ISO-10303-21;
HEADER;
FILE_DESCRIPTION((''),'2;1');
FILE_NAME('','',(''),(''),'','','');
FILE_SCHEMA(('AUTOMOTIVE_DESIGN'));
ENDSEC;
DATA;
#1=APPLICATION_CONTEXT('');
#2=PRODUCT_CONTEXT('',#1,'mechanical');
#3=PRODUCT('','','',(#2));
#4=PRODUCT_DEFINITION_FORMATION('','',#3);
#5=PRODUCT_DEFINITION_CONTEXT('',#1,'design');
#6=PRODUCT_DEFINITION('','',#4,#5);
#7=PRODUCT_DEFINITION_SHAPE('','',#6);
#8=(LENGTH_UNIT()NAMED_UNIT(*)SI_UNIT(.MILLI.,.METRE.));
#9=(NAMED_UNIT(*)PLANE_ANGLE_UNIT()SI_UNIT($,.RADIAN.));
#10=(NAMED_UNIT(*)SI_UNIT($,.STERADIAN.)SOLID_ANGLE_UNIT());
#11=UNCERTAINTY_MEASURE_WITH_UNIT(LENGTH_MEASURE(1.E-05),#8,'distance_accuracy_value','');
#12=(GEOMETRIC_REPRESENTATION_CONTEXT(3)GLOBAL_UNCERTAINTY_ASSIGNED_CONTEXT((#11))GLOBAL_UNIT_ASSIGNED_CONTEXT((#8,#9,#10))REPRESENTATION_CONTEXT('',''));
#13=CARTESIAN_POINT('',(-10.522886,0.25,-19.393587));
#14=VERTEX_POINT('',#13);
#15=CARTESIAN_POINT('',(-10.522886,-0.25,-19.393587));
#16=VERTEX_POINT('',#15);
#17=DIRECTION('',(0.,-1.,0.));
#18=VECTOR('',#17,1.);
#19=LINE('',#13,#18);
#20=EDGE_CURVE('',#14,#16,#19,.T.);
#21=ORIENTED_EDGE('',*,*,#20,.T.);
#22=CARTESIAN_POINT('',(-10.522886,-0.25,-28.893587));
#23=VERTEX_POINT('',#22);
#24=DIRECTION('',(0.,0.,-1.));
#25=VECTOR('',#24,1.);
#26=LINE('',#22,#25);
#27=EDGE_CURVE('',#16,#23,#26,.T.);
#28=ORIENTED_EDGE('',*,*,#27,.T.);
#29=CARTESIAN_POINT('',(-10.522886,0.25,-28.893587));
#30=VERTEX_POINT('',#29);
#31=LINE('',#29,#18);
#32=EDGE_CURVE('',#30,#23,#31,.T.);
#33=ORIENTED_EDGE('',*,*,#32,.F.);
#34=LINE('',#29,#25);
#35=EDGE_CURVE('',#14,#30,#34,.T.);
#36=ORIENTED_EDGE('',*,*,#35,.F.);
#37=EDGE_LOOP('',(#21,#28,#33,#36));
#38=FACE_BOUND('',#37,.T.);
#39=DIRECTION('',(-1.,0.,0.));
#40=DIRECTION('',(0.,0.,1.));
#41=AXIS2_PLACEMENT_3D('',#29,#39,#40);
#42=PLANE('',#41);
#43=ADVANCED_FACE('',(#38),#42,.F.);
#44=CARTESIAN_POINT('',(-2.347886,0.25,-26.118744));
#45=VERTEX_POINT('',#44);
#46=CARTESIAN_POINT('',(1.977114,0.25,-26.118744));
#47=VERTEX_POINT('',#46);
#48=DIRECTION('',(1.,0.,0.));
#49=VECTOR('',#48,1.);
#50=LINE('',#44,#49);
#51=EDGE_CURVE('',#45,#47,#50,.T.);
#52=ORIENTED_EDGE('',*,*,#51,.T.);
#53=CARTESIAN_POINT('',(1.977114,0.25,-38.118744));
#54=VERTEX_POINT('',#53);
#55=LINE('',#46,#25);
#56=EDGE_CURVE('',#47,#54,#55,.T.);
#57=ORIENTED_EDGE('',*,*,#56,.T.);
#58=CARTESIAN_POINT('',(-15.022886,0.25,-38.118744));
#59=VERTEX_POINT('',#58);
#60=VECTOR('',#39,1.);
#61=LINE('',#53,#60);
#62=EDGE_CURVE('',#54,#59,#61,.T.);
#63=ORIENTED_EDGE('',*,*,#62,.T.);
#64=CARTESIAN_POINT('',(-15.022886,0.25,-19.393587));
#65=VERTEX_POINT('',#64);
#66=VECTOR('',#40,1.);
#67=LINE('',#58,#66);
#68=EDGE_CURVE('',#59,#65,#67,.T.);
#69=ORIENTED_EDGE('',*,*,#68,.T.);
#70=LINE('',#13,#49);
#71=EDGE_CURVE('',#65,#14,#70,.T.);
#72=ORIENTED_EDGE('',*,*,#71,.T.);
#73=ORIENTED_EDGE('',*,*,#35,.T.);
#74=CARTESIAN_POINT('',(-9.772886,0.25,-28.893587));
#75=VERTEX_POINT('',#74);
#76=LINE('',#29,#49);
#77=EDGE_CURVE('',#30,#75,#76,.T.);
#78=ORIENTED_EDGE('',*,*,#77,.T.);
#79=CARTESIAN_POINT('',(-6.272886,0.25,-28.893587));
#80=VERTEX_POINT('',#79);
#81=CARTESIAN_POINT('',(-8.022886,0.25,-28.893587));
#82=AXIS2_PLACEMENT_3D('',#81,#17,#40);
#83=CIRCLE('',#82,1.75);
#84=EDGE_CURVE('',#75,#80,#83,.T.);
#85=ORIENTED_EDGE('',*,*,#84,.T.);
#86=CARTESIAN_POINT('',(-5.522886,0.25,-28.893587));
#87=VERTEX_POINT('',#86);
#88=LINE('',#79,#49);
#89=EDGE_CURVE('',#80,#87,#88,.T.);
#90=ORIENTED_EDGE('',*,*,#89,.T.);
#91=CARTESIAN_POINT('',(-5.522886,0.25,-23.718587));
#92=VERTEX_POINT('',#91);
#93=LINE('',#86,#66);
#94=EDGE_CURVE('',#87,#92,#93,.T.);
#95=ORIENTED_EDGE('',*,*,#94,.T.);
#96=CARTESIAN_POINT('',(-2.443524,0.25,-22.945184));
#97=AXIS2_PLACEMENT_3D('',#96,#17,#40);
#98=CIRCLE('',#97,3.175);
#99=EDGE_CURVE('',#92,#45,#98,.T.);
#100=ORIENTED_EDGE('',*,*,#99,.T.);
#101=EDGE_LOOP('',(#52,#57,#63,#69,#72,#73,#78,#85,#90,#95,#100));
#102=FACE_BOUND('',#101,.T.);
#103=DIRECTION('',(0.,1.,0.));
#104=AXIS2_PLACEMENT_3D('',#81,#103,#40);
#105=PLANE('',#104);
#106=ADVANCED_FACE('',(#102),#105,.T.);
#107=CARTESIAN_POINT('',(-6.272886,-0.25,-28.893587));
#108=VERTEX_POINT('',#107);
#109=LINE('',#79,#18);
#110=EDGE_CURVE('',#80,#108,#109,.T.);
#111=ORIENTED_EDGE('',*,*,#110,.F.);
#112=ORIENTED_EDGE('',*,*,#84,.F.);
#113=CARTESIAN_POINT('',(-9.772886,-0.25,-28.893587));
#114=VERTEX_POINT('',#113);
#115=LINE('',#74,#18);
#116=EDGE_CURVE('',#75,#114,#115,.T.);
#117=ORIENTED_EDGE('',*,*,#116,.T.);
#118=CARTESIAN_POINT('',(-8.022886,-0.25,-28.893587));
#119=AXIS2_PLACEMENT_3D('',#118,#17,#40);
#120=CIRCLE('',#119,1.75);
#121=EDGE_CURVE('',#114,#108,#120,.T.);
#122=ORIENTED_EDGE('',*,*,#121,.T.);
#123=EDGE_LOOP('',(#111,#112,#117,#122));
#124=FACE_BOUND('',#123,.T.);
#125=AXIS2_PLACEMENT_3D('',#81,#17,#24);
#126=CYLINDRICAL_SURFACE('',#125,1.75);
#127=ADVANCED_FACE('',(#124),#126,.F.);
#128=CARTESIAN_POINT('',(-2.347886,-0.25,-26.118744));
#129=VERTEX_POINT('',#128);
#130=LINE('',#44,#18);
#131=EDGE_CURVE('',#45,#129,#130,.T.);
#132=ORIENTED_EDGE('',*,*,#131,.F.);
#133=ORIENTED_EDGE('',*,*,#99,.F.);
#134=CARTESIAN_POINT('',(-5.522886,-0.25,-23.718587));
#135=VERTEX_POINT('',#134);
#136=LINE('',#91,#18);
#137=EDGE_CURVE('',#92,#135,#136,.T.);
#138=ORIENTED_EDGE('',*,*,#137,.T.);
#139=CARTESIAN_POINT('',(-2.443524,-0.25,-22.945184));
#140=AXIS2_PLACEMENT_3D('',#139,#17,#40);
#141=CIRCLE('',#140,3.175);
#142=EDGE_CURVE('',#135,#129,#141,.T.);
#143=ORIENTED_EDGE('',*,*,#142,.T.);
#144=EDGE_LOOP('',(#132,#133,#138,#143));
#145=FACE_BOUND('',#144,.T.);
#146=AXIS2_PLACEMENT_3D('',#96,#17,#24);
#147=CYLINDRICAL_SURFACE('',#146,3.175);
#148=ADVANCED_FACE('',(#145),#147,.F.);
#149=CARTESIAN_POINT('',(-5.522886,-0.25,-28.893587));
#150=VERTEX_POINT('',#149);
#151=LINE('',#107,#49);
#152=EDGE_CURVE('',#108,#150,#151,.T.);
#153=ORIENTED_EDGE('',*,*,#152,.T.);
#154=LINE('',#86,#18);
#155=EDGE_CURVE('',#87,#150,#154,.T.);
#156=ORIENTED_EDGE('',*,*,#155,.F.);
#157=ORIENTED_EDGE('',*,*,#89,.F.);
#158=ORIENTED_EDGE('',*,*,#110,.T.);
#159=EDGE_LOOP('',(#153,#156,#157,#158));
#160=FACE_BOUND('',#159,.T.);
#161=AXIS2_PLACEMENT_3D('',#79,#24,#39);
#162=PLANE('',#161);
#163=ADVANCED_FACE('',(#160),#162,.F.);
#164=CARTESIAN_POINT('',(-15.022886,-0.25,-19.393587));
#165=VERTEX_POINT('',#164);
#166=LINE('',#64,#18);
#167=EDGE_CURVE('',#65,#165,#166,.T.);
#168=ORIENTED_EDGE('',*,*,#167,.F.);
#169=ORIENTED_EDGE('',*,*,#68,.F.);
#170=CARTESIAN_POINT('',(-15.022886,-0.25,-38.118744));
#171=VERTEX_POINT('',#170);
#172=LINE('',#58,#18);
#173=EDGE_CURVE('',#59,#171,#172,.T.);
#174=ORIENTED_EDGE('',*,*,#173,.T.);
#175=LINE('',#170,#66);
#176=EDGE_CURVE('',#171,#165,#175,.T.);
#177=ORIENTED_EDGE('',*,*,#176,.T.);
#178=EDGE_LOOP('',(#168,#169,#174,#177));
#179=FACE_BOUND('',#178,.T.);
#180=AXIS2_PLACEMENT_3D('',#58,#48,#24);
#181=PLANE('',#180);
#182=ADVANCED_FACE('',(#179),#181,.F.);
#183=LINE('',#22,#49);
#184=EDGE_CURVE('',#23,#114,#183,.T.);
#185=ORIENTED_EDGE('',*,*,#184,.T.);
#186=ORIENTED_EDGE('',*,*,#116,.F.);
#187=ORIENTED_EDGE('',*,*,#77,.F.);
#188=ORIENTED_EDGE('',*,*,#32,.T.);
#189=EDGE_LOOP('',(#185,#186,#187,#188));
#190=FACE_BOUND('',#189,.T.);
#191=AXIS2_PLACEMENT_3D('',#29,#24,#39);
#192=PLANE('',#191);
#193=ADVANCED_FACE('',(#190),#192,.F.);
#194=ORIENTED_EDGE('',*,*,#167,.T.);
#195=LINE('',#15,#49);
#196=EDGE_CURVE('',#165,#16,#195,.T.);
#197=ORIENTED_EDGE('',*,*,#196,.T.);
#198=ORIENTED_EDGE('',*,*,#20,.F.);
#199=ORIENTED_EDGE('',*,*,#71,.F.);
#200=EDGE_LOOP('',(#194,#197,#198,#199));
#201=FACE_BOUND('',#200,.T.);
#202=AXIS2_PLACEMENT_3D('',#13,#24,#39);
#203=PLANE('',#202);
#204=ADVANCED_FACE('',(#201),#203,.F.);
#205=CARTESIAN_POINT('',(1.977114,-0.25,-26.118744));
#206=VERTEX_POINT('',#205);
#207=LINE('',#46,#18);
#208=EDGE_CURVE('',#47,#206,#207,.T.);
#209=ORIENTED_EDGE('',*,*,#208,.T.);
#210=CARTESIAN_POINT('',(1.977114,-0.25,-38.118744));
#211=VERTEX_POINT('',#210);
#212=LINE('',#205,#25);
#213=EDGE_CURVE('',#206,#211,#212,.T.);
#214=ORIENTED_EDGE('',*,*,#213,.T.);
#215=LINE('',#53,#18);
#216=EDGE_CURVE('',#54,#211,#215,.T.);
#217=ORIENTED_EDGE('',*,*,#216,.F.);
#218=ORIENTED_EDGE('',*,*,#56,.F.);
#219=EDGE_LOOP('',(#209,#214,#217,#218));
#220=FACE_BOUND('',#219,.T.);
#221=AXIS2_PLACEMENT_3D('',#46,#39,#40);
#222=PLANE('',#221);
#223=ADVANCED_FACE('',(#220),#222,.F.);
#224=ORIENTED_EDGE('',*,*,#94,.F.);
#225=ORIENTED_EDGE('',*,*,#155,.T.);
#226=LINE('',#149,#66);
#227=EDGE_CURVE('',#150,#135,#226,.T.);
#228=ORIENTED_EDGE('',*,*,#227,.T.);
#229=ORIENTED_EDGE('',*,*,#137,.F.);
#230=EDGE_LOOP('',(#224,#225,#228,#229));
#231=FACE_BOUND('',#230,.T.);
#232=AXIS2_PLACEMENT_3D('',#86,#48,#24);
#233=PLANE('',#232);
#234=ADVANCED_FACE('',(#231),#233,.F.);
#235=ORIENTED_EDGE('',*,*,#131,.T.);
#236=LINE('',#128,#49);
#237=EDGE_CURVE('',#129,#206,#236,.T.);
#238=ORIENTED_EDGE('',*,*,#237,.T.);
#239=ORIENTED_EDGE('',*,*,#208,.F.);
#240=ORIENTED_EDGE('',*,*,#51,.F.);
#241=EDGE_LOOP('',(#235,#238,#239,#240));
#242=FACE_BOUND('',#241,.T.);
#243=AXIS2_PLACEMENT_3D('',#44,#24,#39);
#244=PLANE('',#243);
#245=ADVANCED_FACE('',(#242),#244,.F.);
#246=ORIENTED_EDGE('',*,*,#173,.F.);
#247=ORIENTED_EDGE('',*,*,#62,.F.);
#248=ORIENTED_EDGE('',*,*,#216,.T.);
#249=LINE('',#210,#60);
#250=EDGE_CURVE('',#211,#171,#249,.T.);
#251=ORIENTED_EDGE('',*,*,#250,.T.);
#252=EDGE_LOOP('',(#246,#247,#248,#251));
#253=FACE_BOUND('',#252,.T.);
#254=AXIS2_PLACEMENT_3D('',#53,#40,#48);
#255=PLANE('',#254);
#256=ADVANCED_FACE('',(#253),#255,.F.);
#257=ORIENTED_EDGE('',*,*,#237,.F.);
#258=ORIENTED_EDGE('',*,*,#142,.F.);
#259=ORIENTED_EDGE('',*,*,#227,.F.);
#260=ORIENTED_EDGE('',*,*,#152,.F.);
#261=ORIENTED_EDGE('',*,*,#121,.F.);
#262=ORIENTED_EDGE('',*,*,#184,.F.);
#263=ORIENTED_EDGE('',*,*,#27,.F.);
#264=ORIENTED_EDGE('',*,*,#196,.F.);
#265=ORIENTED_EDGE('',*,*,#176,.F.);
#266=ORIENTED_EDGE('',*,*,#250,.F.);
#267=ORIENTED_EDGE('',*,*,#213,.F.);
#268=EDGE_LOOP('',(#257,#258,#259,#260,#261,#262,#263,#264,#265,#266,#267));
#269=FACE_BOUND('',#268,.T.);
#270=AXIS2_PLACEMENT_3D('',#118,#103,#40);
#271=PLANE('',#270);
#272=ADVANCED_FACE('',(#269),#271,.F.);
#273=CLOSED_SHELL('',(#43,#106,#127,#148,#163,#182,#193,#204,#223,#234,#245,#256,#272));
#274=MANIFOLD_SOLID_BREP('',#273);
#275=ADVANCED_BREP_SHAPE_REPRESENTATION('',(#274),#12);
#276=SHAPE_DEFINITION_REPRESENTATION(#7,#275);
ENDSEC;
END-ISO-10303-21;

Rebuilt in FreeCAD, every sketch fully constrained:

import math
import FreeCAD as App
import Part
import Sketcher
from FreeCAD import Vector

doc = App.newDocument("Part")
body = doc.addObject("PartDesign::Body", "Body")

# Sketch on XZ plane
sketch1 = body.newObject("Sketcher::SketchObject", "Sketch")
sketch1.AttachmentSupport = (doc.getObject("XZ_Plane"), [""])
sketch1.MapMode = "FlatFace"
sketch1.addGeometry(Part.LineSegment(Vector(2, -26.1, 0), Vector(2, -38.1, 0)), False)
sketch1.addGeometry(Part.LineSegment(Vector(2, -38.1, 0), Vector(-15, -38.1, 0)), False)
sketch1.addGeometry(Part.LineSegment(Vector(-15, -38.1, 0), Vector(-15, -19.4, 0)), False)
sketch1.addGeometry(Part.LineSegment(Vector(-15, -19.4, 0), Vector(-10.5, -19.4, 0)), False)
sketch1.addGeometry(Part.LineSegment(Vector(-10.5, -19.4, 0), Vector(-10.5, -28.9, 0)), False)
sketch1.addGeometry(Part.LineSegment(Vector(-10.5, -28.9, 0), Vector(-9.8, -28.9, 0)), False)
sketch1.addGeometry(Part.ArcOfCircle(Part.Circle(Vector(-8, -28.9, 0), Vector(0, 0, 1), 1.8), math.radians(180), math.radians(360)), False)
sketch1.addGeometry(Part.LineSegment(Vector(-6.3, -28.9, 0), Vector(-5.5, -28.9, 0)), False)
sketch1.addGeometry(Part.LineSegment(Vector(-5.5, -28.9, 0), Vector(-5.5, -23.7, 0)), False)
sketch1.addGeometry(Part.ArcOfCircle(Part.Circle(Vector(-2.4, -22.9, 0), Vector(0, 0, 1), 3.2), math.radians(-166), math.radians(-88)), False)
sketch1.addGeometry(Part.LineSegment(Vector(-2.3, -26.1, 0), Vector(2, -26.1, 0)), False)
sketch1.addConstraint(Sketcher.Constraint("Coincident", 0, 2, 1, 1))
sketch1.addConstraint(Sketcher.Constraint("Coincident", 1, 2, 2, 1))
sketch1.addConstraint(Sketcher.Constraint("Coincident", 2, 2, 3, 1))
sketch1.addConstraint(Sketcher.Constraint("Coincident", 3, 2, 4, 1))
sketch1.addConstraint(Sketcher.Constraint("Coincident", 4, 2, 5, 1))
sketch1.addConstraint(Sketcher.Constraint("Coincident", 5, 2, 6, 1))
sketch1.addConstraint(Sketcher.Constraint("Coincident", 6, 2, 7, 1))
sketch1.addConstraint(Sketcher.Constraint("Coincident", 7, 2, 8, 1))
sketch1.addConstraint(Sketcher.Constraint("Coincident", 8, 2, 9, 1))
sketch1.addConstraint(Sketcher.Constraint("Coincident", 9, 2, 10, 1))
sketch1.addConstraint(Sketcher.Constraint("Coincident", 10, 2, 0, 1))
sketch1.addConstraint(Sketcher.Constraint("Vertical", 0))
sketch1.addConstraint(Sketcher.Constraint("Horizontal", 1))
sketch1.addConstraint(Sketcher.Constraint("Vertical", 2))
sketch1.addConstraint(Sketcher.Constraint("Horizontal", 3))
sketch1.addConstraint(Sketcher.Constraint("Vertical", 4))
sketch1.addConstraint(Sketcher.Constraint("Horizontal", 5))
sketch1.addConstraint(Sketcher.Constraint("Horizontal", 7))
sketch1.addConstraint(Sketcher.Constraint("Vertical", 8))
sketch1.addConstraint(Sketcher.Constraint("Horizontal", 10))
sketch1.addConstraint(Sketcher.Constraint("Horizontal", 6, 3, 4, 2))
sketch1.addConstraint(Sketcher.Constraint("Horizontal", 5, 2, 6, 2))
sketch1.addConstraint(Sketcher.Constraint("Equal", 5, 7))
sketch1.addConstraint(Sketcher.Constraint("DistanceX", 1, 2, 1, 1, 17.0))
sketch1.addConstraint(Sketcher.Constraint("DistanceY", 0, 2, 0, 1, 12.0))
sketch1.addConstraint(Sketcher.Constraint("Radius", 6, 1.75))
sketch1.addConstraint(Sketcher.Constraint("DistanceX", 3, 1, 3, 2, 4.5))
sketch1.addConstraint(Sketcher.Constraint("DistanceY", 4, 2, 4, 1, 9.5))
sketch1.addConstraint(Sketcher.Constraint("Radius", 9, 3.175))
sketch1.addConstraint(Sketcher.Constraint("DistanceX", 6, 3, 0, 2, 10.0))
sketch1.addConstraint(Sketcher.Constraint("DistanceX", 10, 1, 10, 2, 4.325))
sketch1.addConstraint(Sketcher.Constraint("DistanceY", 8, 1, 8, 2, 5.175))
sketch1.addConstraint(Sketcher.Constraint("DistanceY", 2, 1, 2, 2, 18.725157))
sketch1.addConstraint(Sketcher.Constraint("DistanceX", 6, 3, -1, 1, 8.022886))
sketch1.addConstraint(Sketcher.Constraint("DistanceY", 6, 3, -1, 1, 28.893587))
pad1 = body.newObject("PartDesign::Pad", "Pad")
pad1.Profile = sketch1
pad1.Length = 0.5
pad1.Midplane = True

doc.recompute()
